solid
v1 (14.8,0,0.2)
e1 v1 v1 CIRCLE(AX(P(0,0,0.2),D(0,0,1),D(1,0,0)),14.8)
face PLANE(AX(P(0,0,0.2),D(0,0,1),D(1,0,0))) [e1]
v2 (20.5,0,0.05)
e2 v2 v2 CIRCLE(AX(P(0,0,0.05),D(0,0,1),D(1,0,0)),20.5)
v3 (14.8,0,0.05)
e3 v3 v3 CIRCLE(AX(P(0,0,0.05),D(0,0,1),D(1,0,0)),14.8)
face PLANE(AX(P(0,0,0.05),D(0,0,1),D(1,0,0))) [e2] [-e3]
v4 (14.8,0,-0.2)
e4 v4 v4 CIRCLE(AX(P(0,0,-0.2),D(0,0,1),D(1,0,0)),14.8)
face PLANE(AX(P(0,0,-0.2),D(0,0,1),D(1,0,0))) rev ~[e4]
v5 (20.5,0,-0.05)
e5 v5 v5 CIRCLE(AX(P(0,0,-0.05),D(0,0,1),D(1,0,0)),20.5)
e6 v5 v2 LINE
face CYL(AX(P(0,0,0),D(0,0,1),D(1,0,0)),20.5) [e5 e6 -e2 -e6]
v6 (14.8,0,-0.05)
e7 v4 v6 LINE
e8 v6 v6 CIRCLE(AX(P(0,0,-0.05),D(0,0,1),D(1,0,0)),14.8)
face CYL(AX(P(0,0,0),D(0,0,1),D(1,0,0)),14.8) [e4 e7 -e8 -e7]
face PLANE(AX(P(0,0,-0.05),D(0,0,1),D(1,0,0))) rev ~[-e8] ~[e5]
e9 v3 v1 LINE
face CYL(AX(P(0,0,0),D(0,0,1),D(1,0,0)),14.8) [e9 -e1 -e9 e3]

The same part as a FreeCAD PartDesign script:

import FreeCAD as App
import Part
import Sketcher

V = App.Vector
Q = App.Units.Quantity

doc = App.newDocument("Part")
body = doc.addObject("PartDesign::Body", "Body")

# Sketch on XY plane
sketch1 = body.newObject("Sketcher::SketchObject", "Sketch")
sketch1.AttachmentSupport = (doc.getObject("XY_Plane"), [""])
sketch1.MapMode = "FlatFace"
sketch1.addGeometry(Part.Circle(V(0, 0, 0), V(0, 0, 1), 15), False)
sketch1.addConstraint([
    Sketcher.Constraint("Coincident", 0, 3, -1, 1),
    Sketcher.Constraint("Diameter", 0, Q("29.6 mm")),
])
pad1 = body.newObject("PartDesign::Pad", "Pad")
pad1.Profile = sketch1
pad1.Length = 0.4
pad1.Midplane = True

# Sketch on XY plane
sketch2 = body.newObject("Sketcher::SketchObject", "Sketch001")
sketch2.AttachmentSupport = (doc.getObject("XY_Plane"), [""])
sketch2.MapMode = "FlatFace"
sketch2.addGeometry([
    Part.Circle(V(0, 0, 0), V(0, 0, 1), 20),
    Part.Circle(V(0, 0, 0), V(0, 0, 1), 15),
], False)
sketch2.addConstraint([
    Sketcher.Constraint("Coincident", 0, 3, -1, 1),
    Sketcher.Constraint("Coincident", 1, 3, -1, 1),
    Sketcher.Constraint("Diameter", 0, Q("41 mm")),
    Sketcher.Constraint("Diameter", 1, Q("29.6 mm")),
])
pad2 = body.newObject("PartDesign::Pad", "Pad001")
pad2.Profile = sketch2
pad2.Length = 0.1
pad2.Midplane = True

doc.recompute()
